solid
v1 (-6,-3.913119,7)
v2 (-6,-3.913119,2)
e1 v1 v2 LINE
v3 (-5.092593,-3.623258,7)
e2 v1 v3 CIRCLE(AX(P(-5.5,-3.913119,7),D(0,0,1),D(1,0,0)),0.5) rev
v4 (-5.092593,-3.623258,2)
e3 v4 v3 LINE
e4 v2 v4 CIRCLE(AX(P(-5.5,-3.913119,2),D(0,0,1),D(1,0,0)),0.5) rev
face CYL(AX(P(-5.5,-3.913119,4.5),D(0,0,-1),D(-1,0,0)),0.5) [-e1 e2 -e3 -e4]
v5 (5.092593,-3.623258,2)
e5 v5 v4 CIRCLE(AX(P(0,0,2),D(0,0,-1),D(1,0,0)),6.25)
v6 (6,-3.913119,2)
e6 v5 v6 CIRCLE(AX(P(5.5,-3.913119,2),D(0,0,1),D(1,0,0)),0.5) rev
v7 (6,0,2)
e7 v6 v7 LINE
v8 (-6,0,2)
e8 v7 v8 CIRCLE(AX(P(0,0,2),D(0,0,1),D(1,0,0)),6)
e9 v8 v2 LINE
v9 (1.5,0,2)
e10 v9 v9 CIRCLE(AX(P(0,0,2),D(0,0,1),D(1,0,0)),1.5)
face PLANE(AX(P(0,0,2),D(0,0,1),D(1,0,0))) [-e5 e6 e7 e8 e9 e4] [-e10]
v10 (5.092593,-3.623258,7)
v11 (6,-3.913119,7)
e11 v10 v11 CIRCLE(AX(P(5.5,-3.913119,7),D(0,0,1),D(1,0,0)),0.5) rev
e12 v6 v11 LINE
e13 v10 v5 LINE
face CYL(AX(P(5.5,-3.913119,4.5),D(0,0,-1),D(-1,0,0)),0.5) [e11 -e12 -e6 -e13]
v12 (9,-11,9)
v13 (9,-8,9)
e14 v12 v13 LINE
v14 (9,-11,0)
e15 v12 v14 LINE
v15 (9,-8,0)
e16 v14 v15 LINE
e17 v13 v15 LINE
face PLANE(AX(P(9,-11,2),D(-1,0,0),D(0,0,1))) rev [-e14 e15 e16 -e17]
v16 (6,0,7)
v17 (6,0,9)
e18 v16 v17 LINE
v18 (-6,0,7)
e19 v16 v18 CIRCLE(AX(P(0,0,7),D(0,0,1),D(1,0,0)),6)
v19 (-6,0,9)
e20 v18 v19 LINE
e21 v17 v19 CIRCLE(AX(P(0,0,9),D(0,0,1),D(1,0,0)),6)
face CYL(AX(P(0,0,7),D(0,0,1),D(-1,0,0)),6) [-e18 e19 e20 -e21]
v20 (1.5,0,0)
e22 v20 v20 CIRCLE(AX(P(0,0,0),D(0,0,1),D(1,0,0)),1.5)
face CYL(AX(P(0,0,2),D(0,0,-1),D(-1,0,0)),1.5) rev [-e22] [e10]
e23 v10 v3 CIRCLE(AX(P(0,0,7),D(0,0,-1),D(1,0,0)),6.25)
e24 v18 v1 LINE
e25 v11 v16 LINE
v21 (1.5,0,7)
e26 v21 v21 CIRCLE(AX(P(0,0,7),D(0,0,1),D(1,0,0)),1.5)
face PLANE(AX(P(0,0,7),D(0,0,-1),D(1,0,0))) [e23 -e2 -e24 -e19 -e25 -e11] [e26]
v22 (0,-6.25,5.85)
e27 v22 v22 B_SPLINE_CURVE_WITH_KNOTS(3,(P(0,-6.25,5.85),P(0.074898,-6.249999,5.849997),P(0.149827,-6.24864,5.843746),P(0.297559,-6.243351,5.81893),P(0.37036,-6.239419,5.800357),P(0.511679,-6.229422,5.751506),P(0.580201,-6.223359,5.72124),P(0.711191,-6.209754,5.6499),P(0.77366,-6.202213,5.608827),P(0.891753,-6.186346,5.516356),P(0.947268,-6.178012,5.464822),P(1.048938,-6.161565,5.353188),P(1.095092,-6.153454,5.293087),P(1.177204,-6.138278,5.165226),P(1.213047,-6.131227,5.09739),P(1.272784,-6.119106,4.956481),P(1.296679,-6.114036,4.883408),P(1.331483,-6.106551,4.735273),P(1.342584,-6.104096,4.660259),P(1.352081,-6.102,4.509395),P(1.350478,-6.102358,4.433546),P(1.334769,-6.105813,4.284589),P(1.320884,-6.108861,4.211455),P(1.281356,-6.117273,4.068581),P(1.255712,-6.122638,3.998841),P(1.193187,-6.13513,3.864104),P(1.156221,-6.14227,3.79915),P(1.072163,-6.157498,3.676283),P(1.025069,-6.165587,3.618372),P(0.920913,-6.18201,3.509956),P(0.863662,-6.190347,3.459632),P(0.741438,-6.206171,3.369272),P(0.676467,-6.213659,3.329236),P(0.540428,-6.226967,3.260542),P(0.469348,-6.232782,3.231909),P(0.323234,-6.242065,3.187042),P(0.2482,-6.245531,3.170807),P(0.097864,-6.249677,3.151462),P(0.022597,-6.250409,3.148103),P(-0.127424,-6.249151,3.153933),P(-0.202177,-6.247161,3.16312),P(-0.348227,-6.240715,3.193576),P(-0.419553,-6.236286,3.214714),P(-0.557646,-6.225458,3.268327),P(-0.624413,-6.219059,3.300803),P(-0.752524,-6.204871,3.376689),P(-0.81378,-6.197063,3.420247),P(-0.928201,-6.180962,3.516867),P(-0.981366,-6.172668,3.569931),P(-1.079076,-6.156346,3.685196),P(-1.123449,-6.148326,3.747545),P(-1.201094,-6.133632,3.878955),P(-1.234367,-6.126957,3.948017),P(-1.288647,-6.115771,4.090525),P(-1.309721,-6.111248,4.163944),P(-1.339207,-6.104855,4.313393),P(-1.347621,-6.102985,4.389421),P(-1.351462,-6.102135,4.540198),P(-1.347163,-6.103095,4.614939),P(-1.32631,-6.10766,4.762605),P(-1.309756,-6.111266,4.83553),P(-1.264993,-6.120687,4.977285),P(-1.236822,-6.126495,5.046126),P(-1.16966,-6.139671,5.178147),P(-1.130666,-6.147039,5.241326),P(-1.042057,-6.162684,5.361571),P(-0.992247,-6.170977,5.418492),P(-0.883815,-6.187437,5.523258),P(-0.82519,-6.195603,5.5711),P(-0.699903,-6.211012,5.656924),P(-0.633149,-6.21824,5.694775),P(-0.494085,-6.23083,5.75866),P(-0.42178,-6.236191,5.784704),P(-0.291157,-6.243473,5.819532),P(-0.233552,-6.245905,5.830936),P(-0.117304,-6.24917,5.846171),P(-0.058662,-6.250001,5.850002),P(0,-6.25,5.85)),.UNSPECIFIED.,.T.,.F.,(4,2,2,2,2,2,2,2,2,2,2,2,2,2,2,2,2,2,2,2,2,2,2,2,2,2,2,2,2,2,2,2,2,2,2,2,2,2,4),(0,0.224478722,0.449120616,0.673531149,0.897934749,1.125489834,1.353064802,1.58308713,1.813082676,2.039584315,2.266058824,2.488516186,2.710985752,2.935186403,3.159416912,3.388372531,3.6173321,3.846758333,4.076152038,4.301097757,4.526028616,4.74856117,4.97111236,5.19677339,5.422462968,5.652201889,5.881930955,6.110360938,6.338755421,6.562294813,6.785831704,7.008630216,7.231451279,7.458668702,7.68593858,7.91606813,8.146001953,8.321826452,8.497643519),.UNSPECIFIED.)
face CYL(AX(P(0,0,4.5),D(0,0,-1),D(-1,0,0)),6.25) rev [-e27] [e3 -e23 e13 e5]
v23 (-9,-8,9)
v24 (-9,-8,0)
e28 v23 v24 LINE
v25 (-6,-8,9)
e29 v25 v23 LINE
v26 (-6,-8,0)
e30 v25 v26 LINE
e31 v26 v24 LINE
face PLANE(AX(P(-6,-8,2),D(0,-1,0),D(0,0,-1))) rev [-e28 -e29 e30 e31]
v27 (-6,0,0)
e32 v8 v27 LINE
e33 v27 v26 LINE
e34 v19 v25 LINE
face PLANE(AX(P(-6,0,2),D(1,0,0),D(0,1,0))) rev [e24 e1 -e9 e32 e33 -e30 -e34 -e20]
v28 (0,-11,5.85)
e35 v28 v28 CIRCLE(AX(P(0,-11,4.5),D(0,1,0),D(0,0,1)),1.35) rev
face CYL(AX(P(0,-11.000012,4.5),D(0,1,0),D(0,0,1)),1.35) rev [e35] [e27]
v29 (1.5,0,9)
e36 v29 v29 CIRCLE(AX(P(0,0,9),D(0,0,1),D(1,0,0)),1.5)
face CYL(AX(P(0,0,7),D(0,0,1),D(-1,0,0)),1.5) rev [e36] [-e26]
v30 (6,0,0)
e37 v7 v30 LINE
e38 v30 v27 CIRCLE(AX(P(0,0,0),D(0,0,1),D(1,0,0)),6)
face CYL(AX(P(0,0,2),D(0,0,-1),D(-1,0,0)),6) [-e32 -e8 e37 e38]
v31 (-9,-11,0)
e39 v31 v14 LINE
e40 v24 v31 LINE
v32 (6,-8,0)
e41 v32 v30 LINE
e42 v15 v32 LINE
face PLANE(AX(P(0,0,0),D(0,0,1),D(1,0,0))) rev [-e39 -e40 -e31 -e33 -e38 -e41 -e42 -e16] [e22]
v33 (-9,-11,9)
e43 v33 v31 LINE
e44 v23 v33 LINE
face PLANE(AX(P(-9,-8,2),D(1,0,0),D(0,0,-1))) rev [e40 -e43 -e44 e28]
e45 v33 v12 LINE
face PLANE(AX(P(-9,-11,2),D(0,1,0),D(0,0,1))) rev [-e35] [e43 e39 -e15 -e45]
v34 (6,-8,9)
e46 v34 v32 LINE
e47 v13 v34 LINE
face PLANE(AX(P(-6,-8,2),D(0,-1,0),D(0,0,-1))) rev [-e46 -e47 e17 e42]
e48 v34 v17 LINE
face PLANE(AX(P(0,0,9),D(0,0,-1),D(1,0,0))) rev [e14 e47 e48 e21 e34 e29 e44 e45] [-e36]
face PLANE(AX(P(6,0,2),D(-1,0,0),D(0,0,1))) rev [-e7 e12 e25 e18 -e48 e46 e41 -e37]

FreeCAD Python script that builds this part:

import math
import FreeCAD as App
import Part
import Sketcher

V = App.Vector
Q = App.Units.Quantity


def edges_at(feature, points):
    """Names of the edges that pass closest to the given points."""
    edges = feature.Shape.Edges
    near = lambda p: min(range(len(edges)), key=lambda i: edges[i].distToShape(Part.Vertex(*p))[0])
    return sorted({f"Edge{near(p) + 1}" for p in points})


def add_polygon(sketch, points):
    """Adds a closed chain of lines whose ends are joined by coincident constraints."""
    first, n = sketch.GeometryCount, len(points)
    for a, b in zip(points, points[1:] + points[:1]):
        sketch.addGeometry(Part.LineSegment(App.Vector(*a, 0), App.Vector(*b, 0)), False)
    for i in range(n):
        sketch.addConstraint(Sketcher.Constraint("Coincident", first + i, 2, first + (i + 1) % n, 1))

doc = App.newDocument("Part")
body = doc.addObject("PartDesign::Body", "Body")

# Sketch on XY plane
sketch1 = body.newObject("Sketcher::SketchObject", "Sketch")
sketch1.AttachmentSupport = (doc.getObject("XY_Plane"), [""])
sketch1.MapMode = "FlatFace"
sketch1.addGeometry([
    Part.LineSegment(V(-6, 0, 0), V(-6, -8, 0)),  # 0
    Part.LineSegment(V(-6, -8, 0), V(-9, -8, 0)),  # 1
    Part.LineSegment(V(-9, -8, 0), V(-9, -11, 0)),  # 2
    Part.LineSegment(V(-9, -11, 0), V(9, -11, 0)),  # 3
    Part.LineSegment(V(9, -11, 0), V(9, -8, 0)),  # 4
    Part.LineSegment(V(9, -8, 0), V(6, -8, 0)),  # 5
    Part.LineSegment(V(6, -8, 0), V(6, 0, 0)),  # 6
    Part.ArcOfCircle(Part.Circle(V(0, 0, 0), V(0, 0, 1), 6), math.radians(0), math.radians(180)),  # 7
    Part.Circle(V(0, 0, 0), V(0, 0, 1), 1.5),  # 8
], False)
sketch1.addConstraint([
    Sketcher.Constraint("Coincident", 0, 2, 1, 1),
    Sketcher.Constraint("Coincident", 1, 2, 2, 1),
    Sketcher.Constraint("Coincident", 2, 2, 3, 1),
    Sketcher.Constraint("Coincident", 3, 2, 4, 1),
    Sketcher.Constraint("Coincident", 4, 2, 5, 1),
    Sketcher.Constraint("Coincident", 5, 2, 6, 1),
    Sketcher.Constraint("Tangent", 6, 2, 7, 1),
    Sketcher.Constraint("Tangent", 7, 2, 0, 1),
    Sketcher.Constraint("Vertical", 0),
    Sketcher.Constraint("Horizontal", 1),
    Sketcher.Constraint("Vertical", 2),
    Sketcher.Constraint("Horizontal", 3),
    Sketcher.Constraint("Vertical", 4),
    Sketcher.Constraint("Horizontal", 5),
    Sketcher.Constraint("Vertical", 6),
    Sketcher.Constraint("Coincident", 7, 3, -1, 1),
    Sketcher.Constraint("Coincident", 8, 3, -1, 1),
    Sketcher.Constraint("Symmetric", 1, 2, 4, 2, -2),
    Sketcher.Constraint("Equal", 5, 2),
    Sketcher.Constraint("Diameter", 8, Q("3 mm")),
    Sketcher.Constraint("Radius", 7, Q("6 mm")),
    Sketcher.Constraint("DistanceX", 1, 2, 1, 1, Q("3 mm")),
    Sketcher.Constraint("DistanceY", 0, 2, 0, 1, Q("8 mm")),
])
pad1 = body.newObject("PartDesign::Pad", "Pad")
pad1.Profile = sketch1
pad1.Length = 2

# Sketch on XY plane
sketch2 = body.newObject("Sketcher::SketchObject", "Sketch001")
sketch2.AttachmentSupport = (doc.getObject("XY_Plane"), [""])
sketch2.MapMode = "FlatFace"
sketch2.AttachmentOffset = App.Placement(V(0, 0, 2), App.Rotation())
add_polygon(sketch2, [(-9, -8), (-9, -11), (9, -11), (9, -8)])  # lines 0-3
sketch2.addConstraint([
    Sketcher.Constraint("Vertical", 0),
    Sketcher.Constraint("Horizontal", 1),
    Sketcher.Constraint("Vertical", 2),
    Sketcher.Constraint("Horizontal", 3),
    Sketcher.Constraint("DistanceX", 1, 1, 1, 2, Q("18 mm")),
    Sketcher.Constraint("DistanceY", 0, 2, 0, 1, Q("3 mm")),
    Sketcher.Constraint("DistanceX", 0, 2, -1, 1, Q("9 mm")),
    Sketcher.Constraint("DistanceY", 0, 2, -1, 1, Q("11 mm")),
])
pad2 = body.newObject("PartDesign::Pad", "Pad001")
pad2.Profile = sketch2
pad2.Length = 2.5

# Sketch on XY plane
sketch3 = body.newObject("Sketcher::SketchObject", "Sketch002")
sketch3.AttachmentSupport = (doc.getObject("XY_Plane"), [""])
sketch3.MapMode = "FlatFace"
sketch3.AttachmentOffset = App.Placement(V(0, 0, 2), App.Rotation())
sketch3.addGeometry([
    Part.LineSegment(V(6, -8, 0), V(6, -1.75, 0)),
    Part.ArcOfCircle(Part.Circle(V(0, 0, 0), V(0, 0, 1), 6.25), math.radians(-163.739795), math.radians(-16.260205)),
    Part.LineSegment(V(-6, -1.75, 0), V(-6, -8, 0)),
    Part.LineSegment(V(-6, -8, 0), V(6, -8, 0)),
], False)
sketch3.addConstraint([
    Sketcher.Constraint("Coincident", 0, 2, 1, 2),
    Sketcher.Constraint("Coincident", 1, 1, 2, 1),
    Sketcher.Constraint("Coincident", 2, 2, 3, 1),
    Sketcher.Constraint("Coincident", 3, 2, 0, 1),
    Sketcher.Constraint("Vertical", 0),
    Sketcher.Constraint("Vertical", 2),
    Sketcher.Constraint("Horizontal", 3),
    Sketcher.Constraint("Coincident", 1, 3, -1, 1),
    Sketcher.Constraint("Horizontal", 0, 2, 1, 1),
    Sketcher.Constraint("DistanceX", 3, 1, 3, 2, Q("12 mm")),
    Sketcher.Constraint("Radius", 1, Q("6.25 mm")),
    Sketcher.Constraint("DistanceY", 2, 2, -1, 1, Q("8 mm")),
])
pad3 = body.newObject("PartDesign::Pad", "Pad002")
pad3.Profile = sketch3
pad3.Length = 2.5
doc.recompute()

fillet = body.newObject("PartDesign::Fillet", "Fillet")
fillet.Base = (pad3, edges_at(pad3, [(-6, -1.75, 3.25)]))
fillet.Radius = 0.5
doc.recompute()

fillet2 = body.newObject("PartDesign::Fillet", "Fillet001")
fillet2.Base = (fillet, edges_at(fillet, [(6, -1.75, 3.25)]))
fillet2.Radius = 0.5
body2 = doc.addObject("PartDesign::Body", "Body001")
doc.recompute()

body2.BaseFeature = body
doc.recompute()

mirroring = doc.addObject("Part::Mirroring", "Mirroring")
mirroring.Source = body
mirroring.Base = V(0, 0, 4.5)
mirroring.Normal = V(0, 0, -1)
body3 = doc.addObject("PartDesign::Body", "Body002")
body3.BaseFeature = mirroring
boolean = body2.newObject("PartDesign::Boolean", "Boolean")
boolean.Type = "Fuse"
boolean.addObjects([body3])
doc.recompute()

# Sketch on XZ plane
sketch4 = body2.newObject("Sketcher::SketchObject", "Sketch003")
sketch4.AttachmentSupport = (doc.getObject("XZ_Plane001"), [""])
sketch4.MapMode = "FlatFace"
sketch4.AttachmentOffset = App.Placement(V(0, 0, 11), App.Rotation())
sketch4.addGeometry(Part.Circle(V(0, 4.5, 0), V(0, 0, 1), 1.35), False)
sketch4.addConstraint([
    Sketcher.Constraint("PointOnObject", 0, 3, -2),
    Sketcher.Constraint("Diameter", 0, Q("2.7 mm")),
    Sketcher.Constraint("DistanceY", -1, 1, 0, 3, Q("4.5 mm")),
])
pocket1 = body2.newObject("PartDesign::Pocket", "Pocket")
pocket1.Profile = sketch4
pocket1.Type = "ThroughAll"
pocket1.Midplane = True
mirroring.Visibility = False

doc.recompute()
